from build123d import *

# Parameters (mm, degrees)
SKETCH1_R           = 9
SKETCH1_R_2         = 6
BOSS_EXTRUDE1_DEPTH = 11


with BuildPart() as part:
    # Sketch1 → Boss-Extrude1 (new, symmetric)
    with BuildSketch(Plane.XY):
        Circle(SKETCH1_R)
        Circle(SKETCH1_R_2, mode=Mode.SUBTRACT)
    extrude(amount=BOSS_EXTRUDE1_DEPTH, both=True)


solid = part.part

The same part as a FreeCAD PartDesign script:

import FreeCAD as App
import Part
import Sketcher
from FreeCAD import Vector
Q = App.Units.Quantity

doc = App.newDocument("Part")
params = doc.addObject("Spreadsheet::Sheet", "Params")
for row, (alias, value) in enumerate([
    ("sketch1_diameter", "18 mm"),
    ("sketch1_diameter2", "12 mm"),
    ("pad1_length", "22 mm"),
], start=1):
    params.set(f"A{row}", alias)
    params.set(f"B{row}", "=" + value)
    params.setAlias(f"B{row}", alias)

body = doc.addObject("PartDesign::Body", "Body")

# Sketch on XY plane
sketch1 = body.newObject("Sketcher::SketchObject", "Sketch")
sketch1.AttachmentSupport = (doc.getObject("XY_Plane"), [""])
sketch1.MapMode = "FlatFace"
sketch1.addGeometry([
    Part.Circle(Vector(0, 0, 0), Vector(0, 0, 1), 9),
    Part.Circle(Vector(0, 0, 0), Vector(0, 0, 1), 6),
], False)
sketch1.addConstraint([
    Sketcher.Constraint("Coincident", 0, 3, -1, 1),
    Sketcher.Constraint("Coincident", 1, 3, -1, 1),
    Sketcher.Constraint("Diameter", 0, Q("18 mm")),
    Sketcher.Constraint("Diameter", 1, Q("12 mm")),
])
sketch1.setExpression("Constraints[2]", "Params.sketch1_diameter")
sketch1.setExpression("Constraints[3]", "Params.sketch1_diameter2")
pad1 = body.newObject("PartDesign::Pad", "Pad")
pad1.Profile = sketch1
pad1.setExpression("Length", "Params.pad1_length")
pad1.Midplane = True

doc.recompute()
